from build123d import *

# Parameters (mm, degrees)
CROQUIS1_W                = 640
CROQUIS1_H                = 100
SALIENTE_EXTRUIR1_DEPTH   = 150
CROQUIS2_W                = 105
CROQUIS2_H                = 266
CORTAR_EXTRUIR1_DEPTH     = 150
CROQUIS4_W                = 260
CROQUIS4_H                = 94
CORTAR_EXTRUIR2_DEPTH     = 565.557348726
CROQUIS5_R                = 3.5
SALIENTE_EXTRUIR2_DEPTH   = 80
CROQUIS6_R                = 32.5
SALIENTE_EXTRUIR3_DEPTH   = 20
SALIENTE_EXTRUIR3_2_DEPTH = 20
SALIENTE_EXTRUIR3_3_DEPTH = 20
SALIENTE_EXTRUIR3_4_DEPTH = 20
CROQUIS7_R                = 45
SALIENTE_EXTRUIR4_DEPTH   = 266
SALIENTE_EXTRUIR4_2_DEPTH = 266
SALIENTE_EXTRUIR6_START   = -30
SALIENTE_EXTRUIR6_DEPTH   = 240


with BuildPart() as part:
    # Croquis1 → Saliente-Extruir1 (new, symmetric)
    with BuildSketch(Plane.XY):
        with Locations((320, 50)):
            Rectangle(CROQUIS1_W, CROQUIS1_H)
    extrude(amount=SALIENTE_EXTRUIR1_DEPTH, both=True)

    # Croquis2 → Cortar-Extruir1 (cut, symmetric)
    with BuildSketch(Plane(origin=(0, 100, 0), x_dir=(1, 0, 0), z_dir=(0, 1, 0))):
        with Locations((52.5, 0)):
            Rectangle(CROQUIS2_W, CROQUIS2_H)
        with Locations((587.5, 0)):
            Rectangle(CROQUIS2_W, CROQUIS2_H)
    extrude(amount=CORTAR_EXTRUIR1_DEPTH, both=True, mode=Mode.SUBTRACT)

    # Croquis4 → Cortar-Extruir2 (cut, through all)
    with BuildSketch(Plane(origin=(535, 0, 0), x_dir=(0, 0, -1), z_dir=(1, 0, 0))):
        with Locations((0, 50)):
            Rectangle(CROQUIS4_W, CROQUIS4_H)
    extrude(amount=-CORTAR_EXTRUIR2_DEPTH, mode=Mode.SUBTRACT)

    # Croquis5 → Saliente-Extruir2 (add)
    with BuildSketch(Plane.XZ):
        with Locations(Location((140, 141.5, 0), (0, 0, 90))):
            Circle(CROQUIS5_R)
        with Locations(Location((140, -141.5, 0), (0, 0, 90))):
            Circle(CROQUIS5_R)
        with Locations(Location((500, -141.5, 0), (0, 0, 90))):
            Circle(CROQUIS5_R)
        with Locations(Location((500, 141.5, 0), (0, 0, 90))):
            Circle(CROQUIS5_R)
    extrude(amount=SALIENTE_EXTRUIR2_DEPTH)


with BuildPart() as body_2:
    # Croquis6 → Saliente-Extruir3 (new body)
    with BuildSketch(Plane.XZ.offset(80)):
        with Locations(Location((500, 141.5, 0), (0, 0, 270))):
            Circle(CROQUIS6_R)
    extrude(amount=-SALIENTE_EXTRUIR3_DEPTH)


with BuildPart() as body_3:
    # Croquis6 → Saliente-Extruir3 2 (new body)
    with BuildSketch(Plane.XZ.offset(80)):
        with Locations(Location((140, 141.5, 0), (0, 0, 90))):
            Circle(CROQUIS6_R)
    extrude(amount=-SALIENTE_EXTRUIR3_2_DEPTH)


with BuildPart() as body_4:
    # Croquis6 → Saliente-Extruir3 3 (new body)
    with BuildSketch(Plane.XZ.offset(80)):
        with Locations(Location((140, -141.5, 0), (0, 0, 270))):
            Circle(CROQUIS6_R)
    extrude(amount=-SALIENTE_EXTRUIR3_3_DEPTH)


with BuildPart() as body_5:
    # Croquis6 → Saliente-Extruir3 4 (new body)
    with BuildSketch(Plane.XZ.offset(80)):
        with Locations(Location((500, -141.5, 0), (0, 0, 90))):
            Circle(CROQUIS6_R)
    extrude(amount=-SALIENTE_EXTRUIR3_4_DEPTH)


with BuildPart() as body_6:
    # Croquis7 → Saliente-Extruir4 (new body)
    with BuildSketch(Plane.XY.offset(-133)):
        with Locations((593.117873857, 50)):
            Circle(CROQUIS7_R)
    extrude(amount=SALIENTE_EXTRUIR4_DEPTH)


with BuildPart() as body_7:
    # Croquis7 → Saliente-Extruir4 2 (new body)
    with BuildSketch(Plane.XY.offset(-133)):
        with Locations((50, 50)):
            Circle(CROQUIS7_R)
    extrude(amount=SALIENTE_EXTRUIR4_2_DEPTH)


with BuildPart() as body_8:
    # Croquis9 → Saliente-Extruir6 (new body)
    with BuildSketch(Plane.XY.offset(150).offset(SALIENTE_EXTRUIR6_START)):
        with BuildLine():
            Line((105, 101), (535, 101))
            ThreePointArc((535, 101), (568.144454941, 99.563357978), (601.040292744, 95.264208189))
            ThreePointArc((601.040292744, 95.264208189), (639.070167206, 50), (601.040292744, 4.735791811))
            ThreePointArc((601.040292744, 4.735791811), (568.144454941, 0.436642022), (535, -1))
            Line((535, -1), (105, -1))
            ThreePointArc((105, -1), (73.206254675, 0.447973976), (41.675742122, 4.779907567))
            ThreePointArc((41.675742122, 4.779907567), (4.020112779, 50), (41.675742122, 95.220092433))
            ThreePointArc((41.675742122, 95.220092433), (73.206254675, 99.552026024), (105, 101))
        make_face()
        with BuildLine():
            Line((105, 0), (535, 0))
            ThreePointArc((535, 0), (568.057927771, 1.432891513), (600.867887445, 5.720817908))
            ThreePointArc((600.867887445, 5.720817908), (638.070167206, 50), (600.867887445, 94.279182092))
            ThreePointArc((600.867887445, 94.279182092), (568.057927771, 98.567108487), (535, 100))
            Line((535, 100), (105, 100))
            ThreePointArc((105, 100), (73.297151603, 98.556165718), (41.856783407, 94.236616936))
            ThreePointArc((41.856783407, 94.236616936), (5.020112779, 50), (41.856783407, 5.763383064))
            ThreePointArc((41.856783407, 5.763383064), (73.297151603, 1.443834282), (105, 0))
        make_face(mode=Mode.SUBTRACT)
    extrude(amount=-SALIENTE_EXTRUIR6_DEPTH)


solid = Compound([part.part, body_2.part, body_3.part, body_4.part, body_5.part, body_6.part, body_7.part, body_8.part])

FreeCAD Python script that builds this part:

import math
import FreeCAD as App
import Part
import Sketcher

V = App.Vector


def add_polygon(sketch, points):
    """Adds a closed chain of lines whose ends are joined by coincident constraints."""
    first, n = sketch.GeometryCount, len(points)
    for a, b in zip(points, points[1:] + points[:1]):
        sketch.addGeometry(Part.LineSegment(App.Vector(*a, 0), App.Vector(*b, 0)), False)
    for i in range(n):
        sketch.addConstraint(Sketcher.Constraint("Coincident", first + i, 2, first + (i + 1) % n, 1))

doc = App.newDocument("Part")
body = doc.addObject("PartDesign::Body", "Body")

sketch1 = body.newObject("Sketcher::SketchObject", "Sketch")
sketch1.AttachmentSupport = (doc.getObject("XY_Plane"), [""])
sketch1.MapMode = "FlatFace"
add_polygon(sketch1, [(0, 100), (0, 0), (640, 0), (640, 100)])
sketch1.addConstraint(Sketcher.Constraint("Vertical", 0))
sketch1.addConstraint(Sketcher.Constraint("Horizontal", 1))
sketch1.addConstraint(Sketcher.Constraint("Vertical", 2))
sketch1.addConstraint(Sketcher.Constraint("Horizontal", 3))
sketch1.addConstraint(Sketcher.Constraint("Coincident", 0, 2, -1, 1))
sketch1.addConstraint(Sketcher.Constraint("DistanceX", 1, 1, 1, 2, 640.0))
sketch1.addConstraint(Sketcher.Constraint("DistanceY", 0, 2, 0, 1, 100.0))
pad1 = body.newObject("PartDesign::Pad", "Pad")
pad1.Profile = sketch1
pad1.Length = 300
pad1.Midplane = True

sketch2 = body.newObject("Sketcher::SketchObject", "Sketch001")
sketch2.AttachmentSupport = (doc.getObject("XZ_Plane"), [""])
sketch2.MapMode = "FlatFace"
sketch2.AttachmentOffset = App.Placement(V(0, 0, -100), App.Rotation())
add_polygon(sketch2, [(0, -133), (0, 133), (105, 133), (105, -133)])
add_polygon(sketch2, [(535, -133), (535, 133), (640, 133), (640, -133)])
sketch2.addConstraint(Sketcher.Constraint("Vertical", 0))
sketch2.addConstraint(Sketcher.Constraint("Horizontal", 1))
sketch2.addConstraint(Sketcher.Constraint("Vertical", 2))
sketch2.addConstraint(Sketcher.Constraint("Horizontal", 3))
sketch2.addConstraint(Sketcher.Constraint("Vertical", 4))
sketch2.addConstraint(Sketcher.Constraint("Horizontal", 5))
sketch2.addConstraint(Sketcher.Constraint("Vertical", 6))
sketch2.addConstraint(Sketcher.Constraint("Horizontal", 7))
sketch2.addConstraint(Sketcher.Constraint("Symmetric", 0, 2, 3, 2, -1, 1))
sketch2.addConstraint(Sketcher.Constraint("Horizontal", 1, 2, 4, 2))
sketch2.addConstraint(Sketcher.Constraint("Horizontal", 3, 2, 6, 2))
sketch2.addConstraint(Sketcher.Constraint("Equal", 3, 5))
sketch2.addConstraint(Sketcher.Constraint("DistanceX", 1, 1, 1, 2, 105.0))
sketch2.addConstraint(Sketcher.Constraint("DistanceY", 0, 1, 0, 2, 266.0))
sketch2.addConstraint(Sketcher.Constraint("DistanceX", -1, 1, 4, 2, 535.0))
pocket1 = body.newObject("PartDesign::Pocket", "Pocket")
pocket1.Profile = sketch2
pocket1.Length = 300
pocket1.Midplane = True

sketch3 = body.newObject("Sketcher::SketchObject", "Sketch002")
sketch3.AttachmentSupport = (doc.getObject("YZ_Plane"), [""])
sketch3.MapMode = "FlatFace"
sketch3.AttachmentOffset = App.Placement(V(0, 0, 535), App.Rotation())
add_polygon(sketch3, [(97, 130), (3, 130), (3, -130), (97, -130)])
sketch3.addConstraint(Sketcher.Constraint("Horizontal", 0))
sketch3.addConstraint(Sketcher.Constraint("Vertical", 1))
sketch3.addConstraint(Sketcher.Constraint("Horizontal", 2))
sketch3.addConstraint(Sketcher.Constraint("Vertical", 3))
sketch3.addConstraint(Sketcher.Constraint("DistanceX", 0, 2, 0, 1, 94.0))
sketch3.addConstraint(Sketcher.Constraint("DistanceY", 1, 2, 1, 1, 260.0))
sketch3.addConstraint(Sketcher.Constraint("DistanceX", -1, 1, 0, 2, 3.0))
sketch3.addConstraint(Sketcher.Constraint("DistanceY", -1, 1, 0, 2, 130.0))
pocket2 = body.newObject("PartDesign::Pocket", "Pocket001")
pocket2.Profile = sketch3
pocket2.Type = "ThroughAll"

sketch4 = body.newObject("Sketcher::SketchObject", "Sketch003")
sketch4.AttachmentSupport = (doc.getObject("XZ_Plane"), [""])
sketch4.MapMode = "FlatFace"
sketch4.addGeometry(Part.Circle(V(140, 141.5, 0), V(0, 0, 1), 3.5), False)
sketch4.addGeometry(Part.Circle(V(140, -141.5, 0), V(0, 0, 1), 3.5), False)
sketch4.addGeometry(Part.Circle(V(500, -141.5, 0), V(0, 0, 1), 3.5), False)
sketch4.addGeometry(Part.Circle(V(500, 141.5, 0), V(0, 0, 1), 3.5), False)
sketch4.addConstraint(Sketcher.Constraint("Equal", 0, 1))
sketch4.addConstraint(Sketcher.Constraint("Equal", 1, 2))
sketch4.addConstraint(Sketcher.Constraint("Equal", 2, 3))
sketch4.addConstraint(Sketcher.Constraint("Symmetric", 0, 3, 1, 3, -1))
sketch4.addConstraint(Sketcher.Constraint("Symmetric", 2, 3, 3, 3, -1))
sketch4.addConstraint(Sketcher.Constraint("Horizontal", 1, 3, 2, 3))
sketch4.addConstraint(Sketcher.Constraint("Diameter", 0, 7.0))
sketch4.addConstraint(Sketcher.Constraint("DistanceX", -1, 1, 0, 3, 140.0))
sketch4.addConstraint(Sketcher.Constraint("DistanceX", -1, 1, 2, 3, 500.0))
sketch4.addConstraint(Sketcher.Constraint("DistanceY", 1, 3, 0, 3, 283.0))
pad2 = body.newObject("PartDesign::Pad", "Pad001")
pad2.Profile = sketch4
pad2.Length = 80
body2 = doc.addObject("PartDesign::Body", "Body001")

sketch5 = body2.newObject("Sketcher::SketchObject", "Sketch004")
sketch5.AttachmentSupport = (doc.getObject("XZ_Plane001"), [""])
sketch5.MapMode = "FlatFace"
sketch5.AttachmentOffset = App.Placement(V(0, 0, 80), App.Rotation())
sketch5.addGeometry(Part.Circle(V(500, 141.5, 0), V(0, 0, 1), 32.5), False)
sketch5.addConstraint(Sketcher.Constraint("Diameter", 0, 65.0))
sketch5.addConstraint(Sketcher.Constraint("DistanceX", -1, 1, 0, 3, 500.0))
sketch5.addConstraint(Sketcher.Constraint("DistanceY", -1, 1, 0, 3, 141.5))
pad3 = body2.newObject("PartDesign::Pad", "Pad002")
pad3.Profile = sketch5
pad3.Length = 20
pad3.Reversed = True
body3 = doc.addObject("PartDesign::Body", "Body002")

sketch6 = body3.newObject("Sketcher::SketchObject", "Sketch005")
sketch6.AttachmentSupport = (doc.getObject("XZ_Plane002"), [""])
sketch6.MapMode = "FlatFace"
sketch6.AttachmentOffset = App.Placement(V(0, 0, 80), App.Rotation())
sketch6.addGeometry(Part.Circle(V(140, 141.5, 0), V(0, 0, 1), 32.5), False)
sketch6.addConstraint(Sketcher.Constraint("Diameter", 0, 65.0))
sketch6.addConstraint(Sketcher.Constraint("DistanceX", -1, 1, 0, 3, 140.0))
sketch6.addConstraint(Sketcher.Constraint("DistanceY", -1, 1, 0, 3, 141.5))
pad4 = body3.newObject("PartDesign::Pad", "Pad003")
pad4.Profile = sketch6
pad4.Length = 20
pad4.Reversed = True
body4 = doc.addObject("PartDesign::Body", "Body003")

sketch7 = body4.newObject("Sketcher::SketchObject", "Sketch006")
sketch7.AttachmentSupport = (doc.getObject("XZ_Plane003"), [""])
sketch7.MapMode = "FlatFace"
sketch7.AttachmentOffset = App.Placement(V(0, 0, 80), App.Rotation())
sketch7.addGeometry(Part.Circle(V(140, -141.5, 0), V(0, 0, 1), 32.5), False)
sketch7.addConstraint(Sketcher.Constraint("Diameter", 0, 65.0))
sketch7.addConstraint(Sketcher.Constraint("DistanceX", -1, 1, 0, 3, 140.0))
sketch7.addConstraint(Sketcher.Constraint("DistanceY", 0, 3, -1, 1, 141.5))
pad5 = body4.newObject("PartDesign::Pad", "Pad004")
pad5.Profile = sketch7
pad5.Length = 20
pad5.Reversed = True
body5 = doc.addObject("PartDesign::Body", "Body004")

sketch8 = body5.newObject("Sketcher::SketchObject", "Sketch007")
sketch8.AttachmentSupport = (doc.getObject("XZ_Plane004"), [""])
sketch8.MapMode = "FlatFace"
sketch8.AttachmentOffset = App.Placement(V(0, 0, 80), App.Rotation())
sketch8.addGeometry(Part.Circle(V(500, -141.5, 0), V(0, 0, 1), 32.5), False)
sketch8.addConstraint(Sketcher.Constraint("Diameter", 0, 65.0))
sketch8.addConstraint(Sketcher.Constraint("DistanceX", -1, 1, 0, 3, 500.0))
sketch8.addConstraint(Sketcher.Constraint("DistanceY", 0, 3, -1, 1, 141.5))
pad6 = body5.newObject("PartDesign::Pad", "Pad005")
pad6.Profile = sketch8
pad6.Length = 20
pad6.Reversed = True
body6 = doc.addObject("PartDesign::Body", "Body005")

sketch9 = body6.newObject("Sketcher::SketchObject", "Sketch008")
sketch9.AttachmentSupport = (doc.getObject("XY_Plane005"), [""])
sketch9.MapMode = "FlatFace"
sketch9.AttachmentOffset = App.Placement(V(0, 0, -133), App.Rotation())
sketch9.addGeometry(Part.Circle(V(593.117874, 50, 0), V(0, 0, 1), 45), False)
sketch9.addConstraint(Sketcher.Constraint("Diameter", 0, 90.0))
sketch9.addConstraint(Sketcher.Constraint("DistanceY", -1, 1, 0, 3, 50.0))
sketch9.addConstraint(Sketcher.Constraint("DistanceX", -1, 1, 0, 3, 593.117874))
pad7 = body6.newObject("PartDesign::Pad", "Pad006")
pad7.Profile = sketch9
pad7.Length = 266
body7 = doc.addObject("PartDesign::Body", "Body006")

sketch10 = body7.newObject("Sketcher::SketchObject", "Sketch009")
sketch10.AttachmentSupport = (doc.getObject("XY_Plane006"), [""])
sketch10.MapMode = "FlatFace"
sketch10.AttachmentOffset = App.Placement(V(0, 0, -133), App.Rotation())
sketch10.addGeometry(Part.Circle(V(50, 50, 0), V(0, 0, 1), 45), False)
sketch10.addConstraint(Sketcher.Constraint("Diameter", 0, 90.0))
sketch10.addConstraint(Sketcher.Constraint("DistanceX", -1, 1, 0, 3, 50.0))
sketch10.addConstraint(Sketcher.Constraint("DistanceY", -1, 1, 0, 3, 50.0))
pad8 = body7.newObject("PartDesign::Pad", "Pad007")
pad8.Profile = sketch10
pad8.Length = 266
body8 = doc.addObject("PartDesign::Body", "Body007")

sketch11 = body8.newObject("Sketcher::SketchObject", "Sketch010")
sketch11.AttachmentSupport = (doc.getObject("XY_Plane007"), [""])
sketch11.MapMode = "FlatFace"
sketch11.AttachmentOffset = App.Placement(V(0, 0, 120), App.Rotation())
sketch11.addGeometry(Part.LineSegment(V(535, 101, 0), V(105, 101, 0)), False)
sketch11.addGeometry(Part.ArcOfCircle(Part.Circle(V(105, -248.777995, 0), V(0, 0, 1), 349.777995), math.radians(90), math.radians(100.430418)), False)
sketch11.addGeometry(Part.ArcOfCircle(Part.Circle(V(50, 50, 0), V(0, 0, 1), 45.979887), math.radians(100.430418), math.radians(259.569582)), False)
sketch11.addGeometry(Part.ArcOfCircle(Part.Circle(V(105, 348.777995, 0), V(0, 0, 1), 349.777995), math.radians(-100.430418), math.radians(-90)), False)
sketch11.addGeometry(Part.LineSegment(V(105, -1, 0), V(535, -1, 0)), False)
sketch11.addGeometry(Part.ArcOfCircle(Part.Circle(V(535, 382.052569, 0), V(0, 0, 1), 383.052569), math.radians(-90), math.radians(-80.072302)), False)
sketch11.addGeometry(Part.ArcOfCircle(Part.Circle(V(593.117874, 50, 0), V(0, 0, 1), 45.952293), math.radians(-80.072302), math.radians(80.072302)), False)
sketch11.addGeometry(Part.ArcOfCircle(Part.Circle(V(535, -282.052569, 0), V(0, 0, 1), 383.052569), math.radians(80.072302), math.radians(90)), False)
sketch11.addGeometry(Part.ArcOfCircle(Part.Circle(V(105, 348.777996, 0), V(0, 0, 1), 348.777996), math.radians(-100.430418), math.radians(-90)), False)
sketch11.addGeometry(Part.ArcOfCircle(Part.Circle(V(50, 50, 0), V(0, 0, 1), 44.979887), math.radians(100.430418), math.radians(259.569582)), False)
sketch11.addGeometry(Part.ArcOfCircle(Part.Circle(V(105, -248.777996, 0), V(0, 0, 1), 348.777996), math.radians(90), math.radians(100.430418)), False)
sketch11.addGeometry(Part.LineSegment(V(105, 100, 0), V(535, 100, 0)), False)
sketch11.addGeometry(Part.ArcOfCircle(Part.Circle(V(535, -282.052569, 0), V(0, 0, 1), 382.052569), math.radians(80.072302), math.radians(90)), False)
sketch11.addGeometry(Part.ArcOfCircle(Part.Circle(V(593.117874, 50, 0), V(0, 0, 1), 44.952293), math.radians(-80.072302), math.radians(80.072302)), False)
sketch11.addGeometry(Part.ArcOfCircle(Part.Circle(V(535, 382.052569, 0), V(0, 0, 1), 382.052569), math.radians(-90), math.radians(-80.072302)), False)
sketch11.addGeometry(Part.LineSegment(V(535, 0, 0), V(105, 0, 0)), False)
sketch11.addConstraint(Sketcher.Constraint("Tangent", 0, 2, 1, 1))
sketch11.addConstraint(Sketcher.Constraint("Tangent", 1, 2, 2, 1))
sketch11.addConstraint(Sketcher.Constraint("Tangent", 2, 2, 3, 1))
sketch11.addConstraint(Sketcher.Constraint("Tangent", 3, 2, 4, 1))
sketch11.addConstraint(Sketcher.Constraint("Tangent", 4, 2, 5, 1))
sketch11.addConstraint(Sketcher.Constraint("Tangent", 5, 2, 6, 1))
sketch11.addConstraint(Sketcher.Constraint("Tangent", 6, 2, 7, 1))
sketch11.addConstraint(Sketcher.Constraint("Tangent", 7, 2, 0, 1))
sketch11.addConstraint(Sketcher.Constraint("Tangent", 8, 1, 9, 2))
sketch11.addConstraint(Sketcher.Constraint("Tangent", 9, 1, 10, 2))
sketch11.addConstraint(Sketcher.Constraint("Tangent", 10, 1, 11, 1))
sketch11.addConstraint(Sketcher.Constraint("Tangent", 11, 2, 12, 2))
sketch11.addConstraint(Sketcher.Constraint("Tangent", 12, 1, 13, 2))
sketch11.addConstraint(Sketcher.Constraint("Tangent", 13, 1, 14, 2))
sketch11.addConstraint(Sketcher.Constraint("Tangent", 14, 1, 15, 1))
sketch11.addConstraint(Sketcher.Constraint("Tangent", 15, 2, 8, 2))
sketch11.addConstraint(Sketcher.Constraint("Horizontal", 0))
sketch11.addConstraint(Sketcher.Constraint("Horizontal", 4))
sketch11.addConstraint(Sketcher.Constraint("Horizontal", 11))
sketch11.addConstraint(Sketcher.Constraint("Horizontal", 15))
sketch11.addConstraint(Sketcher.Constraint("Coincident", 8, 3, 3, 3))
sketch11.addConstraint(Sketcher.Constraint("Coincident", 9, 3, 2, 3))
sketch11.addConstraint(Sketcher.Constraint("Coincident", 10, 3, 1, 3))
sketch11.addConstraint(Sketcher.Constraint("Coincident", 12, 3, 7, 3))
sketch11.addConstraint(Sketcher.Constraint("Coincident", 13, 3, 6, 3))
sketch11.addConstraint(Sketcher.Constraint("Equal", 1, 3))
sketch11.addConstraint(Sketcher.Constraint("Equal", 5, 7))
sketch11.addConstraint(Sketcher.Constraint("Equal", 12, 14))
sketch11.addConstraint(Sketcher.Constraint("PointOnObject", 14, 1, -1))
sketch11.addConstraint(Sketcher.Constraint("Horizontal", 2, 3, 6, 3))
sketch11.addConstraint(Sketcher.Constraint("Vertical", 1, 3, 3, 3))
sketch11.addConstraint(Sketcher.Constraint("DistanceX", 0, 2, 0, 1, 430.0))
sketch11.addConstraint(Sketcher.Constraint("DistanceX", -1, 1, 1, 3, 105.0))
sketch11.addConstraint(Sketcher.Constraint("DistanceX", -1, 1, 2, 3, 50.0))
sketch11.addConstraint(Sketcher.Constraint("DistanceY", -1, 1, 2, 3, 50.0))
sketch11.addConstraint(Sketcher.Constraint("DistanceY", -1, 1, 0, 2, 101.0))
sketch11.addConstraint(Sketcher.Constraint("Radius", 5, 383.052569))
sketch11.addConstraint(Sketcher.Constraint("Radius", 1, 349.777995))
sketch11.addConstraint(Sketcher.Constraint("Radius", 6, 45.952293))
pad9 = body8.newObject("PartDesign::Pad", "Pad008")
pad9.Profile = sketch11
pad9.Length = 240
pad9.Reversed = True

doc.recompute()
